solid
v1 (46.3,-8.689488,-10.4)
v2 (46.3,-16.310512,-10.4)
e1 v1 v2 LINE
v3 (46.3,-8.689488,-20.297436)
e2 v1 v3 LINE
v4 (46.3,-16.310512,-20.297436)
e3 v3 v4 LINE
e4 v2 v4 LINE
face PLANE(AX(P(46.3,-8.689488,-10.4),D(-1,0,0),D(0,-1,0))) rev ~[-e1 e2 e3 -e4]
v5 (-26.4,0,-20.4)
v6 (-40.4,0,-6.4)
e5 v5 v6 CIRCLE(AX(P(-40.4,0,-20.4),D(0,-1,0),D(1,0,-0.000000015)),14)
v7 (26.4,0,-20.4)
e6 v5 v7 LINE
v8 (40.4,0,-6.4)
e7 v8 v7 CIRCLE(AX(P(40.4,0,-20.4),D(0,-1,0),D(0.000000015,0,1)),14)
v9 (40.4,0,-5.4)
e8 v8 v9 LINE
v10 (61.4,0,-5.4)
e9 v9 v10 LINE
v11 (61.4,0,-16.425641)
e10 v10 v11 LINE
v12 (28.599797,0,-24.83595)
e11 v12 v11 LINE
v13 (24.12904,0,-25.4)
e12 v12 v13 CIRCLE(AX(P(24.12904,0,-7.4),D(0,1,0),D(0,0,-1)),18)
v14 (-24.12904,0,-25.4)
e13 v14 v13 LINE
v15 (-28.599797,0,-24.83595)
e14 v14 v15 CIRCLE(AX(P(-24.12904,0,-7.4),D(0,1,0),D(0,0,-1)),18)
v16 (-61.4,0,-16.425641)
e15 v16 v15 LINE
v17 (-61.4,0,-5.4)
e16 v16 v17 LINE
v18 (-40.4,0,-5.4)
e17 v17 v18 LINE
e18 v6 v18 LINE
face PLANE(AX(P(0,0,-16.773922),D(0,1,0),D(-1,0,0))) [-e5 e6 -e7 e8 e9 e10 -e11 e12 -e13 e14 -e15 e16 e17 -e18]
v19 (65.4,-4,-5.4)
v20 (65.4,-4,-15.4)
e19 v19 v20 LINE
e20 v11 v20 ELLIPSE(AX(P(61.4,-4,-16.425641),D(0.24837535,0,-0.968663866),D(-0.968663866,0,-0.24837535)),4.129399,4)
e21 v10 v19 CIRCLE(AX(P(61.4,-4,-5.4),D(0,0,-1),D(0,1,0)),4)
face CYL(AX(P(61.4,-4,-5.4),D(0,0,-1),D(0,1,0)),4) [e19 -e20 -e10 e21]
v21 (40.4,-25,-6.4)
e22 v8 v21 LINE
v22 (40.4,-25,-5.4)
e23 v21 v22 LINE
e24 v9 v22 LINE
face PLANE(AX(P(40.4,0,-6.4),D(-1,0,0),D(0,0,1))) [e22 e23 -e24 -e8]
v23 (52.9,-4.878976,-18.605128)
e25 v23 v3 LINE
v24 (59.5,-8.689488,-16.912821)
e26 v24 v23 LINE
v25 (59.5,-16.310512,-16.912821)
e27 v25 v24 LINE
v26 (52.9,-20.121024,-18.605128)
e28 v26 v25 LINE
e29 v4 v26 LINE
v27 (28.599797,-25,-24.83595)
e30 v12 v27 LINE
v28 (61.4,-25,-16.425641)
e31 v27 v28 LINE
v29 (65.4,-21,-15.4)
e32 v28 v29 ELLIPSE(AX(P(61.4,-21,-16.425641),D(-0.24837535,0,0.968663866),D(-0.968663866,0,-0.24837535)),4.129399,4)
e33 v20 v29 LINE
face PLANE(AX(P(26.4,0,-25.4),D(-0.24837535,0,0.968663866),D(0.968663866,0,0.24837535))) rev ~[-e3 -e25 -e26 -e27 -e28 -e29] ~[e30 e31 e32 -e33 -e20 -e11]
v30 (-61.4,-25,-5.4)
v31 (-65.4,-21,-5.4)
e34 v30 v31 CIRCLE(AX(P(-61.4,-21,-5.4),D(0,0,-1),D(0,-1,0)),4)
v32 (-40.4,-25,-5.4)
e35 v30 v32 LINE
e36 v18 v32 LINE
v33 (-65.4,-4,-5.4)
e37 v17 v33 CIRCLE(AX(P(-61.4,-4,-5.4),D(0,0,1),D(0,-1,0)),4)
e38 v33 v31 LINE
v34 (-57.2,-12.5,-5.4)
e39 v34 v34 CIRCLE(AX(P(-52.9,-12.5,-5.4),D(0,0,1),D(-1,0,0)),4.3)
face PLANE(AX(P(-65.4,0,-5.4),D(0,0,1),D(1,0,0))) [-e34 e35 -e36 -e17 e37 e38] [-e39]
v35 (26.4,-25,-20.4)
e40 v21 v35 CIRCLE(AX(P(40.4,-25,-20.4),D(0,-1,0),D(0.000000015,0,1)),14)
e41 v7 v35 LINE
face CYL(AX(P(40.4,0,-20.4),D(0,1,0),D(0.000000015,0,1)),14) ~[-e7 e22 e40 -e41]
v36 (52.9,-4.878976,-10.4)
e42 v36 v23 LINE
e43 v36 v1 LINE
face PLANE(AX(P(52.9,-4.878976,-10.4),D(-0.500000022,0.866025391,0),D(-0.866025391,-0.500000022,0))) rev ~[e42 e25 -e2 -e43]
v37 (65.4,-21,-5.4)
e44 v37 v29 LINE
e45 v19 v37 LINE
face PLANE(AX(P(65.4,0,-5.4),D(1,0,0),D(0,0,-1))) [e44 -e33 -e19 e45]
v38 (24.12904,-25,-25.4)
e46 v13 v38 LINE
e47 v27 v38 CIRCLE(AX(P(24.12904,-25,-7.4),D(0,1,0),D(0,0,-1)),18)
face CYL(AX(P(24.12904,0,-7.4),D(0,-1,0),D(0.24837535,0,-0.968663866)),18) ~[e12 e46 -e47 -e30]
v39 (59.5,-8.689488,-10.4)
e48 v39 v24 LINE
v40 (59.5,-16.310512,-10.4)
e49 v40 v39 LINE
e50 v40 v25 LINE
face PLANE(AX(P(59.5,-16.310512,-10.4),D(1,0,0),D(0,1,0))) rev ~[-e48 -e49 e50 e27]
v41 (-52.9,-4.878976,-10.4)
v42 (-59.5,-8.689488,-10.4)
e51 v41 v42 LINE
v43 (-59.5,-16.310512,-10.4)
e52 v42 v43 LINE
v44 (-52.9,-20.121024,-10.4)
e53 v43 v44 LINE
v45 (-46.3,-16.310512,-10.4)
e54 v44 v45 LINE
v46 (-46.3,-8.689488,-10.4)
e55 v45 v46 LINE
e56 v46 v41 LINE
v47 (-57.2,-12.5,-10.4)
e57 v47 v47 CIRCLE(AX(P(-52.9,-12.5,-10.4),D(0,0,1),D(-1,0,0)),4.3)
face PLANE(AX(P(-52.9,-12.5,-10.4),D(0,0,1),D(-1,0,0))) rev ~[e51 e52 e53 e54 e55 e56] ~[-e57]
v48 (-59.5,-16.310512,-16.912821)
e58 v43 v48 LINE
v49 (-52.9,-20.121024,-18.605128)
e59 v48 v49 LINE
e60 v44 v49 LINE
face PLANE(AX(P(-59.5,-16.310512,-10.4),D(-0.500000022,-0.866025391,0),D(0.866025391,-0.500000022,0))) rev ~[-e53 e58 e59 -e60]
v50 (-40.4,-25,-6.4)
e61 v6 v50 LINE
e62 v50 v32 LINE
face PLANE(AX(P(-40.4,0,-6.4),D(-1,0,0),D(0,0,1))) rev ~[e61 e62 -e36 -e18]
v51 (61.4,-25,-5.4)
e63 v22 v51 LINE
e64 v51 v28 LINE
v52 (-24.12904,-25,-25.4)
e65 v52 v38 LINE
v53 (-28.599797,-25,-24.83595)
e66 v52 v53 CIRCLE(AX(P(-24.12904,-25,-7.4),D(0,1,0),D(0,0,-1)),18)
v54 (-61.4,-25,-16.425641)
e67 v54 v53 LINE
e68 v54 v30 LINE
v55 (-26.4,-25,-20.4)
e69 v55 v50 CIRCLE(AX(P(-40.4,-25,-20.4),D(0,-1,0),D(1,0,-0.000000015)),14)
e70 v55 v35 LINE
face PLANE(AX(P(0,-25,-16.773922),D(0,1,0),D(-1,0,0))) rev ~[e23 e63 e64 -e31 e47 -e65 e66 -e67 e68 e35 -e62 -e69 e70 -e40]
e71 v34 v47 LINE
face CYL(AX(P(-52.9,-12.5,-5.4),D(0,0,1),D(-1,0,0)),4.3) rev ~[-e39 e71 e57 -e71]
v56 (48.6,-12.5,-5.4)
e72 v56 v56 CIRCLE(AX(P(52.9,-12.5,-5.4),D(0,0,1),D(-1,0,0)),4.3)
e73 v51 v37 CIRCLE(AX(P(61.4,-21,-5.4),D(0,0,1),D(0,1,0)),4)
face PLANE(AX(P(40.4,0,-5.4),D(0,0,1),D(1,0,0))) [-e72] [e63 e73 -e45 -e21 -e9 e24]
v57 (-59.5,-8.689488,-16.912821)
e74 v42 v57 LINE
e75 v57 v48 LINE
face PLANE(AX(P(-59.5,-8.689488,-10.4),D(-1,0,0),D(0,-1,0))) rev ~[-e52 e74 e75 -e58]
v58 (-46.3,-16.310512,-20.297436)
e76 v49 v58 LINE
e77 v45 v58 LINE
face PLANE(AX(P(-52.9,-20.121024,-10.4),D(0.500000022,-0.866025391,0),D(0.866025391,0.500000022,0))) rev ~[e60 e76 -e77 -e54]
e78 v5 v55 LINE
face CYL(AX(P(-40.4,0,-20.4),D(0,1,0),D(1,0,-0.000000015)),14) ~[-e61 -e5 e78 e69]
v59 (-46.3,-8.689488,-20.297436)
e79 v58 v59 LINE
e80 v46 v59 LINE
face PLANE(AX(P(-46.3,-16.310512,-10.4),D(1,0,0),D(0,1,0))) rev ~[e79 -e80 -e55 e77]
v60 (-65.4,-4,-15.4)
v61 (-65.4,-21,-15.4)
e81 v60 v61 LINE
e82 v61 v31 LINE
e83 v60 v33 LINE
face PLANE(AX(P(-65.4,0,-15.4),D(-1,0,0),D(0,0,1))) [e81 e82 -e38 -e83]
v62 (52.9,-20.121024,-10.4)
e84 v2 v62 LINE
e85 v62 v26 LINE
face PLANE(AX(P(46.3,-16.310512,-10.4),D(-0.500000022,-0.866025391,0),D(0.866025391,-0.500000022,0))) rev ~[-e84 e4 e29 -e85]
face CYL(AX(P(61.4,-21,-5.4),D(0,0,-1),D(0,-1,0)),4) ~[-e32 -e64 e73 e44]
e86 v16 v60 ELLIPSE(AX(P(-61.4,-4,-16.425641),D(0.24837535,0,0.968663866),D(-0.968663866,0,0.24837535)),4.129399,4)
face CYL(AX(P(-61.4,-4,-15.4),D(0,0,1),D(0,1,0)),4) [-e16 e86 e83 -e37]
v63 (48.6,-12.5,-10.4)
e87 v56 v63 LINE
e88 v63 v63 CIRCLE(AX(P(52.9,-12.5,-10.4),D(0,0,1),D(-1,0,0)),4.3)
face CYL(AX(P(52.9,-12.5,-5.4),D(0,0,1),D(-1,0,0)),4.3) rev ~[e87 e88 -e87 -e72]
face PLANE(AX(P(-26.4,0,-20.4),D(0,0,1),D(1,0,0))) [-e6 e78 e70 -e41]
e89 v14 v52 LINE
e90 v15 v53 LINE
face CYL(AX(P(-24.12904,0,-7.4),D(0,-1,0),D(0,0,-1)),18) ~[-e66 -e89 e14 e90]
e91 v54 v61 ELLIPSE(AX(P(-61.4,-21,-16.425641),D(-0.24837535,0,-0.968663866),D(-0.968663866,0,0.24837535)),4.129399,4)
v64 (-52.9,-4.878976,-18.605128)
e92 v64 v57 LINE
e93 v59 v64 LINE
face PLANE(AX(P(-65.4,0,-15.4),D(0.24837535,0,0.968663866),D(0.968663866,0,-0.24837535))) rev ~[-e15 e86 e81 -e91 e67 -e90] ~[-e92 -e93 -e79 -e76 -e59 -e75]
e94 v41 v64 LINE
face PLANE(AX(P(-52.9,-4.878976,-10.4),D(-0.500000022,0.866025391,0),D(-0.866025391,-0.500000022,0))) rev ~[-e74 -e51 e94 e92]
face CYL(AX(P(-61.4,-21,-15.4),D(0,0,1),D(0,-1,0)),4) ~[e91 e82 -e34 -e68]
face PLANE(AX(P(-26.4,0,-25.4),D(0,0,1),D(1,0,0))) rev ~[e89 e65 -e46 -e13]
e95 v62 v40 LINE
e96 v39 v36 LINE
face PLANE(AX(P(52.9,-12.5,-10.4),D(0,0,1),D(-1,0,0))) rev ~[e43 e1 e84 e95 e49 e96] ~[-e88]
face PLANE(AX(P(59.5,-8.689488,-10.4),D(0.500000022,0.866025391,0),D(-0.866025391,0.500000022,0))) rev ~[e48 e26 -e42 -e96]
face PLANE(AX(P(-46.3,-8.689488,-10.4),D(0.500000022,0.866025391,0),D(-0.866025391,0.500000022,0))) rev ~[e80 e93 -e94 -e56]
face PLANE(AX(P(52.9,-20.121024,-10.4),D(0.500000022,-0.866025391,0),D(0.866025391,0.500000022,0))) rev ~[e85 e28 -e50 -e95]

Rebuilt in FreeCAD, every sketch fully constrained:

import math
import FreeCAD as App
import Part
import Sketcher
Q = App.Units.Quantity


def edges_at(feature, points):
    """Names of the edges that pass closest to the given points."""
    edges = feature.Shape.Edges
    near = lambda p: min(range(len(edges)), key=lambda i: edges[i].distToShape(Part.Vertex(*p))[0])
    return sorted({f"Edge{near(p) + 1}" for p in points})


def add_polygon(sketch, points):
    """Adds a closed chain of lines whose ends are joined by coincident constraints."""
    first, n = sketch.GeometryCount, len(points)
    for a, b in zip(points, points[1:] + points[:1]):
        sketch.addGeometry(Part.LineSegment(App.Vector(*a, 0), App.Vector(*b, 0)), False)
    for i in range(n):
        sketch.addConstraint(Sketcher.Constraint("Coincident", first + i, 2, first + (i + 1) % n, 1))

doc = App.newDocument("Part")
body = doc.addObject("PartDesign::Body", "Body")

sketch1 = doc.addObject("Sketcher::SketchObject", "Sketch")
body.addObject(sketch1)
sketch1.AttachmentSupport = (doc.XZ_Plane, [""])
sketch1.MapMode = "FlatFace"
sketch1.addGeometry([
    Part.LineSegment(App.Vector(65.4, -5.4, 0), App.Vector(40.4, -5.4, 0)),
    Part.LineSegment(App.Vector(40.4, -5.4, 0), App.Vector(40.4, -6.4, 0)),
    Part.ArcOfCircle(Part.Circle(App.Vector(40.4, -20.4, 0), App.Vector(0, 0, 1), 14), math.radians(89.999999), math.radians(180.000001)),
    Part.LineSegment(App.Vector(26.4, -20.4, 0), App.Vector(-26.4, -20.4, 0)),
    Part.ArcOfCircle(Part.Circle(App.Vector(-40.4, -20.4, 0), App.Vector(0, 0, 1), 14), math.radians(-0.000001), math.radians(90.000001)),
    Part.LineSegment(App.Vector(-40.4, -6.4, 0), App.Vector(-40.4, -5.4, 0)),
    Part.LineSegment(App.Vector(-40.4, -5.4, 0), App.Vector(-65.4, -5.4, 0)),
    Part.LineSegment(App.Vector(-65.4, -5.4, 0), App.Vector(-65.4, -15.4, 0)),
    Part.LineSegment(App.Vector(-65.4, -15.4, 0), App.Vector(-26.4, -25.4, 0)),
    Part.LineSegment(App.Vector(-26.4, -25.4, 0), App.Vector(26.4, -25.4, 0)),
    Part.LineSegment(App.Vector(26.4, -25.4, 0), App.Vector(65.4, -15.4, 0)),
    Part.LineSegment(App.Vector(65.4, -15.4, 0), App.Vector(65.4, -5.4, 0)),
], False)
sketch1.addConstraint([
    Sketcher.Constraint("Coincident", 0, 2, 1, 1),
    Sketcher.Constraint("Coincident", 1, 2, 2, 1),
    Sketcher.Constraint("Coincident", 2, 2, 3, 1),
    Sketcher.Constraint("Coincident", 3, 2, 4, 1),
    Sketcher.Constraint("Coincident", 4, 2, 5, 1),
    Sketcher.Constraint("Coincident", 5, 2, 6, 1),
    Sketcher.Constraint("Coincident", 6, 2, 7, 1),
    Sketcher.Constraint("Coincident", 7, 2, 8, 1),
    Sketcher.Constraint("Coincident", 8, 2, 9, 1),
    Sketcher.Constraint("Coincident", 9, 2, 10, 1),
    Sketcher.Constraint("Coincident", 10, 2, 11, 1),
    Sketcher.Constraint("Coincident", 11, 2, 0, 1),
    Sketcher.Constraint("Horizontal", 0),
    Sketcher.Constraint("Vertical", 1),
    Sketcher.Constraint("Horizontal", 3),
    Sketcher.Constraint("Vertical", 5),
    Sketcher.Constraint("Horizontal", 6),
    Sketcher.Constraint("Vertical", 7),
    Sketcher.Constraint("Horizontal", 9),
    Sketcher.Constraint("Vertical", 11),
    Sketcher.Constraint("Equal", 2, 4),
    Sketcher.Constraint("Symmetric", 2, 3, 4, 3, -2),
    Sketcher.Constraint("Symmetric", 0, 2, 5, 2, -2),
    Sketcher.Constraint("Symmetric", 7, 2, 10, 2, -2),
    Sketcher.Constraint("Horizontal", 4, 3, 2, 2),
    Sketcher.Constraint("Vertical", 2, 3, 0, 2),
    Sketcher.Constraint("Vertical", 3, 2, 8, 2),
    Sketcher.Constraint("Vertical", 2, 2, 9, 2),
    Sketcher.Constraint("Radius", 2, Q("14 mm")),
    Sketcher.Constraint("DistanceX", 0, 2, 0, 1, Q("25 mm")),
    Sketcher.Constraint("DistanceY", 1, 2, 1, 1, Q("1 mm")),
    Sketcher.Constraint("DistanceY", 7, 2, 7, 1, Q("10 mm")),
    Sketcher.Constraint("DistanceX", 3, 2, 3, 1, Q("52.8 mm")),
    Sketcher.Constraint("DistanceY", 8, 2, 3, 2, Q("5 mm")),
    Sketcher.Constraint("DistanceY", 2, 3, -1, 1, Q("20.4 mm")),
])
pad1 = doc.addObject("PartDesign::Pad", "Pad")
body.addObject(pad1)
pad1.Profile = sketch1
pad1.Length = 25

sketch2 = doc.addObject("Sketcher::SketchObject", "Sketch001")
body.addObject(sketch2)
sketch2.AttachmentSupport = (doc.XY_Plane, [""])
sketch2.MapMode = "FlatFace"
sketch2.AttachmentOffset = App.Placement(App.Vector(0, 0, -5.4), App.Rotation())
sketch2.addGeometry([
    Part.Circle(App.Vector(52.9, -12.5, 0), App.Vector(0, 0, 1), 4.3),
    Part.Circle(App.Vector(-52.9, -12.5, 0), App.Vector(0, 0, 1), 4.3),
], False)
sketch2.addConstraint([
    Sketcher.Constraint("Equal", 0, 1),
    Sketcher.Constraint("Symmetric", 0, 3, 1, 3, -2),
    Sketcher.Constraint("Diameter", 0, Q("8.6 mm")),
    Sketcher.Constraint("DistanceX", -1, 1, 0, 3, Q("52.9 mm")),
    Sketcher.Constraint("DistanceY", 0, 3, -1, 1, Q("12.5 mm")),
])
pocket1 = doc.addObject("PartDesign::Pocket", "Pocket")
body.addObject(pocket1)
pocket1.Profile = sketch2
pocket1.Type = "ThroughAll"

sketch3 = doc.addObject("Sketcher::SketchObject", "Sketch002")
body.addObject(sketch3)
sketch3.AttachmentSupport = (doc.XY_Plane, [""])
sketch3.MapMode = "FlatFace"
sketch3.AttachmentOffset = App.Placement(App.Vector(0, 0, -10.4), App.Rotation())
add_polygon(sketch3, [(46.3, -8.689488), (46.3, -16.310512), (52.9, -20.121024), (59.5, -16.310512), (59.5, -8.689488), (52.9, -4.878976)])
add_polygon(sketch3, [(-59.5, -8.689488), (-59.5, -16.310512), (-52.9, -20.121024), (-46.3, -16.310512), (-46.3, -8.689488), (-52.9, -4.878976)])
sketch3.addConstraint([
    Sketcher.Constraint("Vertical", 0),
    Sketcher.Constraint("Vertical", 3),
    Sketcher.Constraint("Vertical", 6),
    Sketcher.Constraint("Vertical", 9),
    Sketcher.Constraint("Symmetric", 2, 2, 6, 2, -2),
    Sketcher.Constraint("Symmetric", 1, 2, 7, 2, -2),
    Sketcher.Constraint("Symmetric", 0, 2, 8, 2, -2),
    Sketcher.Constraint("Symmetric", 4, 2, 10, 2, -2),
    Sketcher.Constraint("Parallel", 1, 4),
    Sketcher.Constraint("Parallel", 2, 5),
    Sketcher.Constraint("Parallel", 4, 7),
    Sketcher.Constraint("Parallel", 7, 10),
    Sketcher.Constraint("Parallel", 8, 11),
    Sketcher.Constraint("Horizontal", 0, 2, 2, 2),
    Sketcher.Constraint("Horizontal", 3, 2, 5, 2),
    Sketcher.Constraint("Angle", 1, Q("-30.000001 deg")),
    Sketcher.Constraint("DistanceX", 6, 2, 2, 2, Q("119 mm")),
    Sketcher.Constraint("DistanceX", -1, 1, 0, 2, Q("46.3 mm")),
    Sketcher.Constraint("DistanceY", 0, 2, 0, 1, Q("7.621024 mm")),
    Sketcher.Constraint("DistanceY", 0, 2, -1, 1, Q("16.310512 mm")),
])
pocket2 = doc.addObject("PartDesign::Pocket", "Pocket001")
body.addObject(pocket2)
pocket2.Profile = sketch3
pocket2.Type = "ThroughAll"
doc.recompute()

fillet = doc.addObject("PartDesign::Fillet", "Fillet")
body.addObject(fillet)
fillet.Base = (pocket2, edges_at(pocket2, [
    (-65.4, -25, -10.4),
    (-65.4, 0, -10.4),
    (65.4, -25, -10.4),
    (65.4, 0, -10.4),
]))
fillet.Radius = 4
doc.recompute()

fillet2 = doc.addObject("PartDesign::Fillet", "Fillet001")
body.addObject(fillet2)
fillet2.Base = (fillet, edges_at(fillet, [(-26.4, -12.5, -25.4), (26.4, -12.5, -25.4)]))
fillet2.Radius = 18

doc.recompute()
